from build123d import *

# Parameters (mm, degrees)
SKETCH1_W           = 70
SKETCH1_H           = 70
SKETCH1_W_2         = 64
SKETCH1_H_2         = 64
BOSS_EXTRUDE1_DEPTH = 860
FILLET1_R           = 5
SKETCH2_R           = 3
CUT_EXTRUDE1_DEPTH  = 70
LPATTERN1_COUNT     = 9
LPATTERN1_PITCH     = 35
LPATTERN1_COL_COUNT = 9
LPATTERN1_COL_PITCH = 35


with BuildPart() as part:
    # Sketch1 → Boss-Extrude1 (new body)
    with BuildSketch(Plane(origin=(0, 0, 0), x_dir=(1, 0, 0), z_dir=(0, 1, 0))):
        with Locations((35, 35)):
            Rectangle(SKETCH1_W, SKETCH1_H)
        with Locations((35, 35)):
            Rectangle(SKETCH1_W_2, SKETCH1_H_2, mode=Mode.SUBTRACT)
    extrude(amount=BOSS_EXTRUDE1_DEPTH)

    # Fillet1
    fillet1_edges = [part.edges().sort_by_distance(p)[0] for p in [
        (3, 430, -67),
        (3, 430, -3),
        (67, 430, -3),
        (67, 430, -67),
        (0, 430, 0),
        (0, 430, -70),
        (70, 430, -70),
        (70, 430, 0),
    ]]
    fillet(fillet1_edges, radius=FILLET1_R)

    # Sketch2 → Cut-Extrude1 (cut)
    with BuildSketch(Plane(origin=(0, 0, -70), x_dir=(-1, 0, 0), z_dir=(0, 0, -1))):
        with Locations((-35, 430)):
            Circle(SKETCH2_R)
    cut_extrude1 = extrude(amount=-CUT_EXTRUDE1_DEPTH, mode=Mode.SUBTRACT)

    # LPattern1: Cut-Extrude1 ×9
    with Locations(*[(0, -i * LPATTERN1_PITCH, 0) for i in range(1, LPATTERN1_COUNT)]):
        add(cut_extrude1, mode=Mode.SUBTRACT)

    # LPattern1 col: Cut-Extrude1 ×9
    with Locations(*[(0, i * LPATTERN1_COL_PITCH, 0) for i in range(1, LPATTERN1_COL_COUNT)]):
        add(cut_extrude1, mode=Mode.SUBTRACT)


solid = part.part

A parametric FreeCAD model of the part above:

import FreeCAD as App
import Part
import Sketcher


def edges_at(feature, points):
    """Names of the edges that pass closest to the given points."""
    edges = feature.Shape.Edges
    near = lambda p: min(range(len(edges)), key=lambda i: edges[i].distToShape(Part.Vertex(*p))[0])
    return sorted({f"Edge{near(p) + 1}" for p in points})


def add_polygon(sketch, points):
    """Adds a closed chain of lines whose ends are joined by coincident constraints."""
    first, n = sketch.GeometryCount, len(points)
    for a, b in zip(points, points[1:] + points[:1]):
        sketch.addGeometry(Part.LineSegment(App.Vector(*a, 0), App.Vector(*b, 0)), False)
    for i in range(n):
        sketch.addConstraint(Sketcher.Constraint("Coincident", first + i, 2, first + (i + 1) % n, 1))

doc = App.newDocument("Part")
body = doc.addObject("PartDesign::Body", "Body")

# Sketch on XZ plane
sketch1 = body.newObject("Sketcher::SketchObject", "Sketch")
sketch1.AttachmentSupport = (doc.getObject("XZ_Plane"), [""])
sketch1.MapMode = "FlatFace"
add_polygon(sketch1, [(0, -70), (0, 0), (70, 0), (70, -70)])  # lines 0-3
add_polygon(sketch1, [(67, -3), (3, -3), (3, -67), (67, -67)])  # lines 4-7
sketch1.addConstraint(Sketcher.Constraint("Vertical", 0))
sketch1.addConstraint(Sketcher.Constraint("Horizontal", 1))
sketch1.addConstraint(Sketcher.Constraint("Vertical", 2))
sketch1.addConstraint(Sketcher.Constraint("Horizontal", 3))
sketch1.addConstraint(Sketcher.Constraint("Horizontal", 4))
sketch1.addConstraint(Sketcher.Constraint("Vertical", 5))
sketch1.addConstraint(Sketcher.Constraint("Horizontal", 6))
sketch1.addConstraint(Sketcher.Constraint("Vertical", 7))
sketch1.addConstraint(Sketcher.Constraint("Coincident", 0, 2, -1, 1))
sketch1.addConstraint(Sketcher.Constraint("Equal", 3, 0))
sketch1.addConstraint(Sketcher.Constraint("Equal", 6, 5))
sketch1.addConstraint(Sketcher.Constraint("DistanceX", 1, 1, 1, 2, 70.0))
sketch1.addConstraint(Sketcher.Constraint("DistanceX", 4, 2, 4, 1, 64.0))
sketch1.addConstraint(Sketcher.Constraint("DistanceX", -1, 1, 4, 2, 3.0))
sketch1.addConstraint(Sketcher.Constraint("DistanceY", 4, 2, -1, 1, 3.0))
pad1 = body.newObject("PartDesign::Pad", "Pad")
pad1.Profile = sketch1
pad1.Length = 860
pad1.Reversed = True
doc.recompute()

fillet = body.newObject("PartDesign::Fillet", "Fillet")
fillet.Base = (pad1, edges_at(pad1, [
    (3, 430, -67),
    (3, 430, -3),
    (67, 430, -3),
    (67, 430, -67),
    (0, 430, 0),
    (0, 430, -70),
    (70, 430, -70),
    (70, 430, 0),
]))
fillet.Radius = 5

# Sketch on XY plane
sketch2 = body.newObject("Sketcher::SketchObject", "Sketch001")
sketch2.AttachmentSupport = (doc.getObject("XY_Plane"), [""])
sketch2.MapMode = "FlatFace"
sketch2.AttachmentOffset = App.Placement(App.Vector(0, 0, -70), App.Rotation())
sketch2.addGeometry(Part.Circle(App.Vector(35, 430, 0), App.Vector(0, 0, 1), 3), False)
sketch2.addConstraint(Sketcher.Constraint("Diameter", 0, 6.0))
sketch2.addConstraint(Sketcher.Constraint("DistanceX", -1, 1, 0, 3, 35.0))
sketch2.addConstraint(Sketcher.Constraint("DistanceY", -1, 1, 0, 3, 430.0))
pocket1 = body.newObject("PartDesign::Pocket", "Pocket")
pocket1.Profile = sketch2
pocket1.Length = 70
pocket1.Reversed = True
doc.recompute()

linearpattern = body.newObject("PartDesign::LinearPattern", "LinearPattern")
linearpattern.Originals = [pocket1]
linearpattern.Direction = (doc.getObject("Y_Axis"), [""])
linearpattern.Mode = "offset"
linearpattern.Offset = 35
linearpattern.Occurrences = 9
linearpattern.Reversed = True
body.Tip = linearpattern
doc.recompute()

linearpattern2 = body.newObject("PartDesign::LinearPattern", "LinearPattern001")
linearpattern2.Originals = [pocket1]
linearpattern2.Direction = (doc.getObject("Y_Axis"), [""])
linearpattern2.Mode = "offset"
linearpattern2.Offset = 35
linearpattern2.Occurrences = 9
body.Tip = linearpattern2

doc.recompute()
